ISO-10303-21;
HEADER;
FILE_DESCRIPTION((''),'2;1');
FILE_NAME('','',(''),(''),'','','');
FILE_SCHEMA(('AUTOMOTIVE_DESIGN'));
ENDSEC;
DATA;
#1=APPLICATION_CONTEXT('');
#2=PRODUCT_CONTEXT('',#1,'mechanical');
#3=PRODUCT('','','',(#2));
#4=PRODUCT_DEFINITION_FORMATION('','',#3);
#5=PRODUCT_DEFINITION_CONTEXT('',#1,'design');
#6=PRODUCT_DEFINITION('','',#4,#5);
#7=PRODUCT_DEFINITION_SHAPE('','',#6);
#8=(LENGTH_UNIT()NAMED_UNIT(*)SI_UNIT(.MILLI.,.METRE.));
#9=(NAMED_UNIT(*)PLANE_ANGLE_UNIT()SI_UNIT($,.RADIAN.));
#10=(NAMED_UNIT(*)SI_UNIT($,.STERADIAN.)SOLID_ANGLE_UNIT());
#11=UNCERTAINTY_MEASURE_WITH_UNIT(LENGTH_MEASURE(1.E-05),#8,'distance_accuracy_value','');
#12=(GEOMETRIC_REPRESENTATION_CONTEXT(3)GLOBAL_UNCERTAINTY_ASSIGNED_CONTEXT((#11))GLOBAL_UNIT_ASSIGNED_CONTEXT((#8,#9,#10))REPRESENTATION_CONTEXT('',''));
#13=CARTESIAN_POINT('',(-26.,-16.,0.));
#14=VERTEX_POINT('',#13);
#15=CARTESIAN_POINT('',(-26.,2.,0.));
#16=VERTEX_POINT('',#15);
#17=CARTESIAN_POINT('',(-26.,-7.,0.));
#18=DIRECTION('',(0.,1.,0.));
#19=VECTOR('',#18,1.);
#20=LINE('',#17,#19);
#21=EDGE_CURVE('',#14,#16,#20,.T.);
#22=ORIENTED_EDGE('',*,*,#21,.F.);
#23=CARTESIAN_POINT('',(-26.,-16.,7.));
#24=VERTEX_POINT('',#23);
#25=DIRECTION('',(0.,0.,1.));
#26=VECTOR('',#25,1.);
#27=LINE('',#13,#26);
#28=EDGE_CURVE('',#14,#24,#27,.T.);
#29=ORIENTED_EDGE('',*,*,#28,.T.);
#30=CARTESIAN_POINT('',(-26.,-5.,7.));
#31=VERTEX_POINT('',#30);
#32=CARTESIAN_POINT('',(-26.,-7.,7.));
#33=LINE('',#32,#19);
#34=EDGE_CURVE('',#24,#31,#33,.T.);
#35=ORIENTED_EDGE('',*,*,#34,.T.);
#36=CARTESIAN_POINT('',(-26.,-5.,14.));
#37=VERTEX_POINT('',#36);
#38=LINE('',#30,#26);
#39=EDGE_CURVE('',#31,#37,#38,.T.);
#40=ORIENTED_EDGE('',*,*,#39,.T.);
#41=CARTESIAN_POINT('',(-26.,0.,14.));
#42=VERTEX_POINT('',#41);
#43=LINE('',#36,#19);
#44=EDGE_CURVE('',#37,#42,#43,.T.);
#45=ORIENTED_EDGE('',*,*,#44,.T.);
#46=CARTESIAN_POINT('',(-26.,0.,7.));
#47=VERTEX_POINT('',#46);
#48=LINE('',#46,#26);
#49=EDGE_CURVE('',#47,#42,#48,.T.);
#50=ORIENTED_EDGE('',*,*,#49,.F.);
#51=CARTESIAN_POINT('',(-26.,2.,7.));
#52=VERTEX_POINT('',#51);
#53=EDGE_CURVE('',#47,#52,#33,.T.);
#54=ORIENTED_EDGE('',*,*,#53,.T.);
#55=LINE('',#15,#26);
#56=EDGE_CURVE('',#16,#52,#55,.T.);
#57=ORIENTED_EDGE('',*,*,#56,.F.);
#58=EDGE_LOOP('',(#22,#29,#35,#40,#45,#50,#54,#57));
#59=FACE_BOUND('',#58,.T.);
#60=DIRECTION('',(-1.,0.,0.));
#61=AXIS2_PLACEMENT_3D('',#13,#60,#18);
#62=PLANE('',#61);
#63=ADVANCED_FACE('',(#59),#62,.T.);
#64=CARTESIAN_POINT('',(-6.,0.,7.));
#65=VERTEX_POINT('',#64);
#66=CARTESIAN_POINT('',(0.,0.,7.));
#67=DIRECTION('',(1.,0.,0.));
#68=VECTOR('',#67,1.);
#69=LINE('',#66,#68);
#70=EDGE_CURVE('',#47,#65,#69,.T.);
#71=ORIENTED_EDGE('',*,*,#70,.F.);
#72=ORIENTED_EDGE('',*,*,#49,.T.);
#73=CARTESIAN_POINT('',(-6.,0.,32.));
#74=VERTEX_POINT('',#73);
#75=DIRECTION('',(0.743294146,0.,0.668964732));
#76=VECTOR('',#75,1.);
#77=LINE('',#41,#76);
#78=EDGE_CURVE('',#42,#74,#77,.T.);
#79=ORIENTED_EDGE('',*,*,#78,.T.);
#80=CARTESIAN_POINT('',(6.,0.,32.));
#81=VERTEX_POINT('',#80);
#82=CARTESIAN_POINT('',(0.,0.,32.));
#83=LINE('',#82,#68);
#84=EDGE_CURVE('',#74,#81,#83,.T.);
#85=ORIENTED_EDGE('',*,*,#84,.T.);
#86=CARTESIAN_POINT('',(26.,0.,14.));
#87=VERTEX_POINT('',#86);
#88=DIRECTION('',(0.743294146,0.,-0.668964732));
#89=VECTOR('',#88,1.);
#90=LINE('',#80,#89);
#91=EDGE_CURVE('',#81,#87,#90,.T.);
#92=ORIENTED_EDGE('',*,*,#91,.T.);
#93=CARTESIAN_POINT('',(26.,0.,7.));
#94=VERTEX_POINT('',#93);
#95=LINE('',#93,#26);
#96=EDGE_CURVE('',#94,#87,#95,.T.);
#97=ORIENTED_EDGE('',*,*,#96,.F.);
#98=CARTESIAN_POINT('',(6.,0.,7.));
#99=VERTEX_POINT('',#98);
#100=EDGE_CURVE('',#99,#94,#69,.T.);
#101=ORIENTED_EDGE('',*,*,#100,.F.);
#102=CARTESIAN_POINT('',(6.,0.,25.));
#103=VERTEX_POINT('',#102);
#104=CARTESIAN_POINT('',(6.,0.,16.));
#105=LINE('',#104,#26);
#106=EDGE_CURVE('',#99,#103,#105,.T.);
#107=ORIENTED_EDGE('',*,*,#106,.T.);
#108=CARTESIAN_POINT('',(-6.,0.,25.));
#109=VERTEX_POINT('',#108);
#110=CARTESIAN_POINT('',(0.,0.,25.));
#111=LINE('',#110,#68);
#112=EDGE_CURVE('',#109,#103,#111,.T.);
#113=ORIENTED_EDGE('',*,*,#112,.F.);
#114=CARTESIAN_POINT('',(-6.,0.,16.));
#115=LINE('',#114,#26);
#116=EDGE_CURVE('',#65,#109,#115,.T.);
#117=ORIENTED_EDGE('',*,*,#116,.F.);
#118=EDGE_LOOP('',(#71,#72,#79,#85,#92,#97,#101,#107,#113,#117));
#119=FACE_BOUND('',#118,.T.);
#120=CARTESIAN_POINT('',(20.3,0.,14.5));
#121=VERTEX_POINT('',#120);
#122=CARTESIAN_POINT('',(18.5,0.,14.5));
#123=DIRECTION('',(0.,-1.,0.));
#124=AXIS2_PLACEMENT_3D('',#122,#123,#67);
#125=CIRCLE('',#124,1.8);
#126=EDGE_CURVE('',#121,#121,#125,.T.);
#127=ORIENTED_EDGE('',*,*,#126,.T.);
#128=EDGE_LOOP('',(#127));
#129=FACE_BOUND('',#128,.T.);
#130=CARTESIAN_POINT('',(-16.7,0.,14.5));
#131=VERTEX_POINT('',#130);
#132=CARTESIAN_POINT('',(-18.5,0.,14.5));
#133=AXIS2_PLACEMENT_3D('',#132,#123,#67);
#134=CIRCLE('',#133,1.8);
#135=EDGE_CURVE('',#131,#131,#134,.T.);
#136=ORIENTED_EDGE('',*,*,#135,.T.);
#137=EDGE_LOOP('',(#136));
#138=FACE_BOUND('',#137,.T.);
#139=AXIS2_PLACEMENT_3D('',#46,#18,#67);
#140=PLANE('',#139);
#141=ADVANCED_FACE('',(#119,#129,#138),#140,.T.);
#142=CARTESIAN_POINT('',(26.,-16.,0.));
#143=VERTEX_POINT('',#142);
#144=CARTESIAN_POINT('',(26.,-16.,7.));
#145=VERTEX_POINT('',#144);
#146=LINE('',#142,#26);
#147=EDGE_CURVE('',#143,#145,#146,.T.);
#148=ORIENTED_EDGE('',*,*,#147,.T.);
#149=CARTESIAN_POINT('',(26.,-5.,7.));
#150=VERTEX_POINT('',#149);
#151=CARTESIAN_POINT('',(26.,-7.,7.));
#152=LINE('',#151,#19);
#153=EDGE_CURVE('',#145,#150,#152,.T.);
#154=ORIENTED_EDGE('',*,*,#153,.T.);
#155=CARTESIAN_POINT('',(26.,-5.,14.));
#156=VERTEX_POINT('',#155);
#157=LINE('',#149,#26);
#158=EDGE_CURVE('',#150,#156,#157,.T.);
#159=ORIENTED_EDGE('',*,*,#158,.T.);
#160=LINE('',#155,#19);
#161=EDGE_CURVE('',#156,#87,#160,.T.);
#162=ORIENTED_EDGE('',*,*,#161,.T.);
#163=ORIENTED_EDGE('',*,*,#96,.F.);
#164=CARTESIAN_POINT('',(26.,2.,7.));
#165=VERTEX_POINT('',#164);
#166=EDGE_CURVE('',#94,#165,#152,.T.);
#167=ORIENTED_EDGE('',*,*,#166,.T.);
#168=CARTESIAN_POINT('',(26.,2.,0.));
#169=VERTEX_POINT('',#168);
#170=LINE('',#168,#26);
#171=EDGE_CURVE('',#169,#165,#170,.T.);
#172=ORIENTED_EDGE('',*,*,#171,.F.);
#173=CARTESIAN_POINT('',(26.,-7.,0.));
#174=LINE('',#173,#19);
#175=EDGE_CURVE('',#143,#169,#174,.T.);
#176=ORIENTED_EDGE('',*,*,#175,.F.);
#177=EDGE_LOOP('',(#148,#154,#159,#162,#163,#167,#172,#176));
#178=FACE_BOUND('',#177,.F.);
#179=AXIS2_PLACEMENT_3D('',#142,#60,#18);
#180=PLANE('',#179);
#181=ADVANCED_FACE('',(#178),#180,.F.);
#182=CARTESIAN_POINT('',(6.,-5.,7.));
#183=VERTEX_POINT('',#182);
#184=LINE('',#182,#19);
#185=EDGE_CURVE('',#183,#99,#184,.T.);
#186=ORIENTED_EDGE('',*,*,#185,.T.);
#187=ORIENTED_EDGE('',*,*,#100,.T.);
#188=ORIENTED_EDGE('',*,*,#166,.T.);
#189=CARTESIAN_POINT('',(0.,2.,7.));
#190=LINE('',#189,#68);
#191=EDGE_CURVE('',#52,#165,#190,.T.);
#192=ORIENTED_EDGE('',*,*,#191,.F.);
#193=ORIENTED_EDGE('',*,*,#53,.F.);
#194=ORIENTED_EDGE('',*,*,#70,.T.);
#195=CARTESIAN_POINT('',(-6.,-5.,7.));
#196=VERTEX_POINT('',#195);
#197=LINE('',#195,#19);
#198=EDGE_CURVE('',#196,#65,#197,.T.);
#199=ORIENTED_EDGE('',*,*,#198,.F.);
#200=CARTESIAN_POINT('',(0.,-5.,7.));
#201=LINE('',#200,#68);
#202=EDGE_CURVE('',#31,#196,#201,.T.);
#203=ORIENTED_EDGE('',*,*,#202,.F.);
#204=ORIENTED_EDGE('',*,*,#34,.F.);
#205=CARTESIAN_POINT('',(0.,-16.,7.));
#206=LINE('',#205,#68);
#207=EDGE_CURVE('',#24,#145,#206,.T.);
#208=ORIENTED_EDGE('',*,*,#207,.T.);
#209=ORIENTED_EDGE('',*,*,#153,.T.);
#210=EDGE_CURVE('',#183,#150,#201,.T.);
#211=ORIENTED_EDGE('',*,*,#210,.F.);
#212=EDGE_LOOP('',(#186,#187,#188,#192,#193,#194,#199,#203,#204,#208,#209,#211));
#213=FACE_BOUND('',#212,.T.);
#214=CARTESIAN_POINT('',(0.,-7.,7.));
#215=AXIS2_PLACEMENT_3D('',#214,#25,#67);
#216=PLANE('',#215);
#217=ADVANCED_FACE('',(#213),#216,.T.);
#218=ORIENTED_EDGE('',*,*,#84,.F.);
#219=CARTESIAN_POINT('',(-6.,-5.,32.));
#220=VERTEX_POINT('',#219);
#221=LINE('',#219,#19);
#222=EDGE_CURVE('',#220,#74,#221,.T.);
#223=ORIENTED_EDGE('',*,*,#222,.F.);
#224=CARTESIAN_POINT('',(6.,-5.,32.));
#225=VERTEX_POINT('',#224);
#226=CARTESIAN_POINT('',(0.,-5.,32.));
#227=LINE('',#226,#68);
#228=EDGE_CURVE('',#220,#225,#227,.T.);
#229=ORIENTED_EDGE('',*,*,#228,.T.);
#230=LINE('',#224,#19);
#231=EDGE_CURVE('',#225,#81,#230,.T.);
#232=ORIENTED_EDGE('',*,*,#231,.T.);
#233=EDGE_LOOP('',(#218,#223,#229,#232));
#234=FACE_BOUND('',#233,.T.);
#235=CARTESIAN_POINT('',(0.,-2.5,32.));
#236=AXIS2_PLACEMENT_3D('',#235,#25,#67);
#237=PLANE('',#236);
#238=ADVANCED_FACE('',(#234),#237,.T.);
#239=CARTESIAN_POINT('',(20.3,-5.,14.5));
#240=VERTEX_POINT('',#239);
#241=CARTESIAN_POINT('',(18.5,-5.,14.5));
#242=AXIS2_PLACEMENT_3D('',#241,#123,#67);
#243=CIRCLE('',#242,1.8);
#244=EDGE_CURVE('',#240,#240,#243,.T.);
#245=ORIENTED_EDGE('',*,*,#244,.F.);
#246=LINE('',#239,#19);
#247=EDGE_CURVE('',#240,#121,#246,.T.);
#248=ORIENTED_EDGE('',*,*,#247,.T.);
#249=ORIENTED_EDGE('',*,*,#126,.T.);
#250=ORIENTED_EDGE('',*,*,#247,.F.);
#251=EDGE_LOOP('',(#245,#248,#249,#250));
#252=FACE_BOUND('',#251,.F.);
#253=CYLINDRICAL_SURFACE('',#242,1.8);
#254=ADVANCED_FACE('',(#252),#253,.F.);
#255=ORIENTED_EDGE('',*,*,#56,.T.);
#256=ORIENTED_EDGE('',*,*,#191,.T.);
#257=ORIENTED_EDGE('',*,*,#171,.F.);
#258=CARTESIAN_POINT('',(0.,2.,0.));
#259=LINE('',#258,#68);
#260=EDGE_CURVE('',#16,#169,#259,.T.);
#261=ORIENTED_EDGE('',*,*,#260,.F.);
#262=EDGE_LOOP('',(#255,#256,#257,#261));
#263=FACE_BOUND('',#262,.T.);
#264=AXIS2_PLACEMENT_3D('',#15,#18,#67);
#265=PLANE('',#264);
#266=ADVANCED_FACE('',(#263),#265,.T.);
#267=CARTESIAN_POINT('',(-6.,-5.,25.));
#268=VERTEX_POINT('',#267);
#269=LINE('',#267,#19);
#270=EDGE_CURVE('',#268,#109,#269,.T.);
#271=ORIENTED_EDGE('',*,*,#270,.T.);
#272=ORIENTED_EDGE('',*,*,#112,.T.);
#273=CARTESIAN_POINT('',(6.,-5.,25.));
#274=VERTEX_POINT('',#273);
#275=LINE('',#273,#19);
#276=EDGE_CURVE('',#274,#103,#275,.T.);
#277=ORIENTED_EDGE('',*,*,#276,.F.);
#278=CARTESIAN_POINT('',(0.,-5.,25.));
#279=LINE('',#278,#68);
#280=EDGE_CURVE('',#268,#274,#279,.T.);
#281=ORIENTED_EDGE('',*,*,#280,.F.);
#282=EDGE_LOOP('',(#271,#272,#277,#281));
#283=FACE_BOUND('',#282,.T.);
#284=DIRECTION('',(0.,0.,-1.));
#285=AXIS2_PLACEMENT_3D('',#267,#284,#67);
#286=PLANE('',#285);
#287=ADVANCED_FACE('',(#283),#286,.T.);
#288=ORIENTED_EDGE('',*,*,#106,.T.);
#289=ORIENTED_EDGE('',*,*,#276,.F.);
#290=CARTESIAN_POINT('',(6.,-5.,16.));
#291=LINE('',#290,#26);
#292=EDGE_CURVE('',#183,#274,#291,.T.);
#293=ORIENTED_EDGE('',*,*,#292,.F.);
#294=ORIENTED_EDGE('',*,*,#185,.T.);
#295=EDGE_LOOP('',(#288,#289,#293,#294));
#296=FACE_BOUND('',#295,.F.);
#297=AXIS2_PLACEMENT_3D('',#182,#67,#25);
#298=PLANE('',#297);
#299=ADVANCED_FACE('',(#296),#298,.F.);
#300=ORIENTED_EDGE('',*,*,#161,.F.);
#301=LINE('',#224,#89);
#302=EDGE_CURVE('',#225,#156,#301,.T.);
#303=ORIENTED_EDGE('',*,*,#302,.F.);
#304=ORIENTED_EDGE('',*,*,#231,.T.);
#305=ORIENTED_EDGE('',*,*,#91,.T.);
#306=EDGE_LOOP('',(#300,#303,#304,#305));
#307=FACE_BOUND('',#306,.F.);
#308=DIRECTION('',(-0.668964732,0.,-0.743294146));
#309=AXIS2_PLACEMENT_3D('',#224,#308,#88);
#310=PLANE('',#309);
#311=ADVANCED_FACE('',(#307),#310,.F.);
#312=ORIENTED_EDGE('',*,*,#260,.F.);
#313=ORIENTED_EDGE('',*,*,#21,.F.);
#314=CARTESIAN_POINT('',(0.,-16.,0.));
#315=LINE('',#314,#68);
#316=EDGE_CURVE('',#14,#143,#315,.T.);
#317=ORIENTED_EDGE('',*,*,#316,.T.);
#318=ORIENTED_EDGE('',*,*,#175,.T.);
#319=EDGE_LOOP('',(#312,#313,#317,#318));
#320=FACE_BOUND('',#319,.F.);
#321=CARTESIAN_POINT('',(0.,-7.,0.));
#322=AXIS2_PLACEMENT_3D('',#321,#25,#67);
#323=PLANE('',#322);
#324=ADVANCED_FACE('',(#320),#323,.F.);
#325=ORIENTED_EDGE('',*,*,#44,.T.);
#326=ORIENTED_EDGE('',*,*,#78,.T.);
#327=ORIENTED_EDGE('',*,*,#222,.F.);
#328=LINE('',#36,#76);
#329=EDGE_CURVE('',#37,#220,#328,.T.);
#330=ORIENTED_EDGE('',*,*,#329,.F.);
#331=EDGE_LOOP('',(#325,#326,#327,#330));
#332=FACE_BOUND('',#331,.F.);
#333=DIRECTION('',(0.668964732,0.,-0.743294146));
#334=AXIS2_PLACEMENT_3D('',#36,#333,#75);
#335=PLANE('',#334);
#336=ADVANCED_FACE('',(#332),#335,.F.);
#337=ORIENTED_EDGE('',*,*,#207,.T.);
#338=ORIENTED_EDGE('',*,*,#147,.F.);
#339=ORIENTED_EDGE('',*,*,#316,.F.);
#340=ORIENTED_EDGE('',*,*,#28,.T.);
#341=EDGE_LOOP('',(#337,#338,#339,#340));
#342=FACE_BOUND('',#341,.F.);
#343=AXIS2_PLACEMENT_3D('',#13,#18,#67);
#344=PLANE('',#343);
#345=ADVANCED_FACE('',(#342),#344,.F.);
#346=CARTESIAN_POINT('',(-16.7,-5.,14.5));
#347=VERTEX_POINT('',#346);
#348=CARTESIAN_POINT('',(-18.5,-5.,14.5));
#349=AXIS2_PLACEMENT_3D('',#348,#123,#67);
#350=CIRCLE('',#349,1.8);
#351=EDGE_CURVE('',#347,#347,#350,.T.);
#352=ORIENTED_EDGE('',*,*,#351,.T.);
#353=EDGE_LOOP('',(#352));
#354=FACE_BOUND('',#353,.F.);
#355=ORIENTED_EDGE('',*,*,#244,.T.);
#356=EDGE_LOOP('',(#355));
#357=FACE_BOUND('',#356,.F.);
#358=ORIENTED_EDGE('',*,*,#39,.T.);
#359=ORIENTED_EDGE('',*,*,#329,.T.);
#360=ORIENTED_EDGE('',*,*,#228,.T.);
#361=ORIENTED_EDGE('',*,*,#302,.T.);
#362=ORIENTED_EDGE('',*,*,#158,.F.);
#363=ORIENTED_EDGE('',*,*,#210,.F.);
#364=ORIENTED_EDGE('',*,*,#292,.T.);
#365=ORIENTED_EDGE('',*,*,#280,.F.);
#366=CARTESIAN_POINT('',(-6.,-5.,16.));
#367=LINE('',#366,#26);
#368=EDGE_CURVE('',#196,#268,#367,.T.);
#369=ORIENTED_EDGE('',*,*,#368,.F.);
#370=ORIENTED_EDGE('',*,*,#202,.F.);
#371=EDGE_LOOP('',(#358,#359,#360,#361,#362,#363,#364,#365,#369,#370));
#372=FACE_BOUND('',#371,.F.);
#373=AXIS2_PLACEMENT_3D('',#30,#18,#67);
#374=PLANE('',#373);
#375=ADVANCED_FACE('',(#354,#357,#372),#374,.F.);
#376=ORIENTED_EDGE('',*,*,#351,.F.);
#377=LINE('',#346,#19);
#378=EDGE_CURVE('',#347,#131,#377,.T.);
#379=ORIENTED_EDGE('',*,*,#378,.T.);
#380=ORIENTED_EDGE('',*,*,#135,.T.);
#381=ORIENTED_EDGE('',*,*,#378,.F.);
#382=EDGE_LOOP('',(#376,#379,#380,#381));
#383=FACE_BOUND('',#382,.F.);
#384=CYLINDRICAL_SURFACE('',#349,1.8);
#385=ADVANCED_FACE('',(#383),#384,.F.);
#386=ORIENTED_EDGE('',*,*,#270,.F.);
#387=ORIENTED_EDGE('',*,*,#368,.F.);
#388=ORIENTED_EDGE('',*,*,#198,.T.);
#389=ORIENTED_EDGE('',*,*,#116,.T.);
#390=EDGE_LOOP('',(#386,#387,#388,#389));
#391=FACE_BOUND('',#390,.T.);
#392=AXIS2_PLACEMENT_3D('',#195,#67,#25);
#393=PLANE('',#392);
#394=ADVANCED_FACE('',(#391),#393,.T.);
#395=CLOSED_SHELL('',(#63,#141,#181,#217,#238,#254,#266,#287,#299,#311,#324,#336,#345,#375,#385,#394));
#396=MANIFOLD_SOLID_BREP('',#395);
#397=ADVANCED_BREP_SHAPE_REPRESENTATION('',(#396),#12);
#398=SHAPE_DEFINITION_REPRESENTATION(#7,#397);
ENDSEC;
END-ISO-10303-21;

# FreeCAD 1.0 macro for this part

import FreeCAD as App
import Part
import Sketcher
from FreeCAD import Vector

doc = App.newDocument("Part")
params = doc.addObject("Spreadsheet::Sheet", "Params")
for row, (alias, value) in enumerate([
    ("sketch1_width", "52 mm"),
    ("sketch1_height", "18 mm"),
    ("pad1_length", "7 mm"),
    ("sketch2_width", "52 mm"),
    ("sketch2_height", "5 mm"),
    ("pad2_length", "25 mm"),
    ("sketch3_diameter", "3.6 mm"),
    ("sketch3_width", "12 mm"),
    ("sketch3_width2", "20 mm"),
    ("sketch3_height", "18 mm"),
    ("pocket1_length", "5 mm"),
], start=1):
    params.set(f"A{row}", alias)
    params.set(f"B{row}", "=" + value)
    params.setAlias(f"B{row}", alias)

body = doc.addObject("PartDesign::Body", "Body")

sketch1 = body.newObject("Sketcher::SketchObject", "Sketch")
sketch1.AttachmentSupport = (doc.getObject("XY_Plane"), [""])
sketch1.MapMode = "FlatFace"
sketch1.addGeometry([
    Part.LineSegment(Vector(-26, 2, 0), Vector(-26, -16, 0)),
    Part.LineSegment(Vector(-26, -16, 0), Vector(26, -16, 0)),
    Part.LineSegment(Vector(26, -16, 0), Vector(26, 2, 0)),
    Part.LineSegment(Vector(26, 2, 0), Vector(-26, 2, 0)),
], False)
sketch1.addConstraint([
    Sketcher.Constraint("Coincident", 0, 2, 1, 1),
    Sketcher.Constraint("Coincident", 1, 2, 2, 1),
    Sketcher.Constraint("Coincident", 2, 2, 3, 1),
    Sketcher.Constraint("Coincident", 3, 2, 0, 1),
    Sketcher.Constraint("Vertical", 0),
    Sketcher.Constraint("Horizontal", 1),
    Sketcher.Constraint("Vertical", 2),
    Sketcher.Constraint("Horizontal", 3),
    Sketcher.Constraint("DistanceX", 1, 1, 1, 2, 52.0),
    Sketcher.Constraint("DistanceY", 0, 2, 0, 1, 18.0),
    Sketcher.Constraint("DistanceX", 0, 2, -1, 1, 26.0),
    Sketcher.Constraint("DistanceY", 0, 2, -1, 1, 16.0),
])
sketch1.setExpression("Constraints[8]", "Params.sketch1_width")
sketch1.setExpression("Constraints[9]", "Params.sketch1_height")
pad1 = body.newObject("PartDesign::Pad", "Pad")
pad1.Profile = sketch1
pad1.setExpression("Length", "Params.pad1_length")

sketch2 = body.newObject("Sketcher::SketchObject", "Sketch001")
sketch2.AttachmentSupport = (doc.getObject("XY_Plane"), [""])
sketch2.MapMode = "FlatFace"
sketch2.AttachmentOffset = App.Placement(Vector(0, 0, 7), App.Rotation())
sketch2.addGeometry([
    Part.LineSegment(Vector(-26, 0, 0), Vector(-26, -5, 0)),
    Part.LineSegment(Vector(-26, -5, 0), Vector(26, -5, 0)),
    Part.LineSegment(Vector(26, -5, 0), Vector(26, 0, 0)),
    Part.LineSegment(Vector(26, 0, 0), Vector(-26, 0, 0)),
], False)
sketch2.addConstraint([
    Sketcher.Constraint("Coincident", 0, 2, 1, 1),
    Sketcher.Constraint("Coincident", 1, 2, 2, 1),
    Sketcher.Constraint("Coincident", 2, 2, 3, 1),
    Sketcher.Constraint("Coincident", 3, 2, 0, 1),
    Sketcher.Constraint("Vertical", 0),
    Sketcher.Constraint("Horizontal", 1),
    Sketcher.Constraint("Vertical", 2),
    Sketcher.Constraint("Horizontal", 3),
    Sketcher.Constraint("Symmetric", 2, 2, 3, 2, -1, 1),
    Sketcher.Constraint("DistanceX", 1, 1, 1, 2, 52.0),
    Sketcher.Constraint("DistanceY", 0, 2, 0, 1, 5.0),
])
sketch2.setExpression("Constraints[9]", "Params.sketch2_width")
sketch2.setExpression("Constraints[10]", "Params.sketch2_height")
pad2 = body.newObject("PartDesign::Pad", "Pad001")
pad2.Profile = sketch2
pad2.setExpression("Length", "Params.pad2_length")

sketch3 = body.newObject("Sketcher::SketchObject", "Sketch002")
sketch3.AttachmentSupport = (doc.getObject("XZ_Plane"), [""])
sketch3.MapMode = "FlatFace"
sketch3.AttachmentOffset = App.Placement(Vector(0, 0, 5), App.Rotation())
sketch3.addGeometry([
    Part.Circle(Vector(-18.5, 14.5, 0), Vector(0, 0, 1), 1.8),
    Part.Circle(Vector(18.5, 14.5, 0), Vector(0, 0, 1), 1.8),
    Part.LineSegment(Vector(-6, 25, 0), Vector(-6, 7, 0)),
    Part.LineSegment(Vector(-6, 7, 0), Vector(6, 7, 0)),
    Part.LineSegment(Vector(6, 7, 0), Vector(6, 25, 0)),
    Part.LineSegment(Vector(6, 25, 0), Vector(-6, 25, 0)),
    Part.LineSegment(Vector(-26, 14, 0), Vector(-6, 32, 0)),
    Part.LineSegment(Vector(-6, 32, 0), Vector(-26, 32, 0)),
    Part.LineSegment(Vector(-26, 32, 0), Vector(-26, 14, 0)),
    Part.LineSegment(Vector(6, 32, 0), Vector(26, 14, 0)),
    Part.LineSegment(Vector(26, 14, 0), Vector(26, 32, 0)),
    Part.LineSegment(Vector(26, 32, 0), Vector(6, 32, 0)),
], False)
sketch3.addConstraint([
    Sketcher.Constraint("Coincident", 2, 2, 3, 1),
    Sketcher.Constraint("Coincident", 3, 2, 4, 1),
    Sketcher.Constraint("Coincident", 4, 2, 5, 1),
    Sketcher.Constraint("Coincident", 5, 2, 2, 1),
    Sketcher.Constraint("Coincident", 6, 2, 7, 1),
    Sketcher.Constraint("Coincident", 7, 2, 8, 1),
    Sketcher.Constraint("Coincident", 8, 2, 6, 1),
    Sketcher.Constraint("Coincident", 9, 2, 10, 1),
    Sketcher.Constraint("Coincident", 10, 2, 11, 1),
    Sketcher.Constraint("Coincident", 11, 2, 9, 1),
    Sketcher.Constraint("Vertical", 2),
    Sketcher.Constraint("Horizontal", 3),
    Sketcher.Constraint("Vertical", 4),
    Sketcher.Constraint("Horizontal", 5),
    Sketcher.Constraint("Horizontal", 7),
    Sketcher.Constraint("Vertical", 8),
    Sketcher.Constraint("Vertical", 10),
    Sketcher.Constraint("Horizontal", 11),
    Sketcher.Constraint("Equal", 0, 1),
    Sketcher.Constraint("Symmetric", 0, 3, 1, 3, -2),
    Sketcher.Constraint("Symmetric", 8, 2, 9, 2, -2),
    Sketcher.Constraint("Symmetric", 6, 2, 11, 2, -2),
    Sketcher.Constraint("Vertical", 5, 2, 6, 2),
    Sketcher.Constraint("Vertical", 4, 2, 11, 2),
    Sketcher.Constraint("Equal", 4, 8),
    Sketcher.Constraint("Diameter", 0, 3.6),
    Sketcher.Constraint("DistanceX", 3, 1, 3, 2, 12.0),
    Sketcher.Constraint("DistanceX", 7, 2, 7, 1, 20.0),
    Sketcher.Constraint("DistanceY", 2, 2, 2, 1, 18.0),
    Sketcher.Constraint("DistanceY", -1, 1, 2, 2, 7.0),
    Sketcher.Constraint("DistanceY", -1, 1, 6, 2, 32.0),
    Sketcher.Constraint("DistanceX", 0, 3, 1, 3, 37.0),
    Sketcher.Constraint("DistanceY", -1, 1, 0, 3, 14.5),
])
sketch3.setExpression("Constraints[25]", "Params.sketch3_diameter")
sketch3.setExpression("Constraints[26]", "Params.sketch3_width")
sketch3.setExpression("Constraints[27]", "Params.sketch3_width2")
sketch3.setExpression("Constraints[28]", "Params.sketch3_height")
pocket1 = body.newObject("PartDesign::Pocket", "Pocket")
pocket1.Profile = sketch3
pocket1.setExpression("Length", "Params.pocket1_length")

doc.recompute()
